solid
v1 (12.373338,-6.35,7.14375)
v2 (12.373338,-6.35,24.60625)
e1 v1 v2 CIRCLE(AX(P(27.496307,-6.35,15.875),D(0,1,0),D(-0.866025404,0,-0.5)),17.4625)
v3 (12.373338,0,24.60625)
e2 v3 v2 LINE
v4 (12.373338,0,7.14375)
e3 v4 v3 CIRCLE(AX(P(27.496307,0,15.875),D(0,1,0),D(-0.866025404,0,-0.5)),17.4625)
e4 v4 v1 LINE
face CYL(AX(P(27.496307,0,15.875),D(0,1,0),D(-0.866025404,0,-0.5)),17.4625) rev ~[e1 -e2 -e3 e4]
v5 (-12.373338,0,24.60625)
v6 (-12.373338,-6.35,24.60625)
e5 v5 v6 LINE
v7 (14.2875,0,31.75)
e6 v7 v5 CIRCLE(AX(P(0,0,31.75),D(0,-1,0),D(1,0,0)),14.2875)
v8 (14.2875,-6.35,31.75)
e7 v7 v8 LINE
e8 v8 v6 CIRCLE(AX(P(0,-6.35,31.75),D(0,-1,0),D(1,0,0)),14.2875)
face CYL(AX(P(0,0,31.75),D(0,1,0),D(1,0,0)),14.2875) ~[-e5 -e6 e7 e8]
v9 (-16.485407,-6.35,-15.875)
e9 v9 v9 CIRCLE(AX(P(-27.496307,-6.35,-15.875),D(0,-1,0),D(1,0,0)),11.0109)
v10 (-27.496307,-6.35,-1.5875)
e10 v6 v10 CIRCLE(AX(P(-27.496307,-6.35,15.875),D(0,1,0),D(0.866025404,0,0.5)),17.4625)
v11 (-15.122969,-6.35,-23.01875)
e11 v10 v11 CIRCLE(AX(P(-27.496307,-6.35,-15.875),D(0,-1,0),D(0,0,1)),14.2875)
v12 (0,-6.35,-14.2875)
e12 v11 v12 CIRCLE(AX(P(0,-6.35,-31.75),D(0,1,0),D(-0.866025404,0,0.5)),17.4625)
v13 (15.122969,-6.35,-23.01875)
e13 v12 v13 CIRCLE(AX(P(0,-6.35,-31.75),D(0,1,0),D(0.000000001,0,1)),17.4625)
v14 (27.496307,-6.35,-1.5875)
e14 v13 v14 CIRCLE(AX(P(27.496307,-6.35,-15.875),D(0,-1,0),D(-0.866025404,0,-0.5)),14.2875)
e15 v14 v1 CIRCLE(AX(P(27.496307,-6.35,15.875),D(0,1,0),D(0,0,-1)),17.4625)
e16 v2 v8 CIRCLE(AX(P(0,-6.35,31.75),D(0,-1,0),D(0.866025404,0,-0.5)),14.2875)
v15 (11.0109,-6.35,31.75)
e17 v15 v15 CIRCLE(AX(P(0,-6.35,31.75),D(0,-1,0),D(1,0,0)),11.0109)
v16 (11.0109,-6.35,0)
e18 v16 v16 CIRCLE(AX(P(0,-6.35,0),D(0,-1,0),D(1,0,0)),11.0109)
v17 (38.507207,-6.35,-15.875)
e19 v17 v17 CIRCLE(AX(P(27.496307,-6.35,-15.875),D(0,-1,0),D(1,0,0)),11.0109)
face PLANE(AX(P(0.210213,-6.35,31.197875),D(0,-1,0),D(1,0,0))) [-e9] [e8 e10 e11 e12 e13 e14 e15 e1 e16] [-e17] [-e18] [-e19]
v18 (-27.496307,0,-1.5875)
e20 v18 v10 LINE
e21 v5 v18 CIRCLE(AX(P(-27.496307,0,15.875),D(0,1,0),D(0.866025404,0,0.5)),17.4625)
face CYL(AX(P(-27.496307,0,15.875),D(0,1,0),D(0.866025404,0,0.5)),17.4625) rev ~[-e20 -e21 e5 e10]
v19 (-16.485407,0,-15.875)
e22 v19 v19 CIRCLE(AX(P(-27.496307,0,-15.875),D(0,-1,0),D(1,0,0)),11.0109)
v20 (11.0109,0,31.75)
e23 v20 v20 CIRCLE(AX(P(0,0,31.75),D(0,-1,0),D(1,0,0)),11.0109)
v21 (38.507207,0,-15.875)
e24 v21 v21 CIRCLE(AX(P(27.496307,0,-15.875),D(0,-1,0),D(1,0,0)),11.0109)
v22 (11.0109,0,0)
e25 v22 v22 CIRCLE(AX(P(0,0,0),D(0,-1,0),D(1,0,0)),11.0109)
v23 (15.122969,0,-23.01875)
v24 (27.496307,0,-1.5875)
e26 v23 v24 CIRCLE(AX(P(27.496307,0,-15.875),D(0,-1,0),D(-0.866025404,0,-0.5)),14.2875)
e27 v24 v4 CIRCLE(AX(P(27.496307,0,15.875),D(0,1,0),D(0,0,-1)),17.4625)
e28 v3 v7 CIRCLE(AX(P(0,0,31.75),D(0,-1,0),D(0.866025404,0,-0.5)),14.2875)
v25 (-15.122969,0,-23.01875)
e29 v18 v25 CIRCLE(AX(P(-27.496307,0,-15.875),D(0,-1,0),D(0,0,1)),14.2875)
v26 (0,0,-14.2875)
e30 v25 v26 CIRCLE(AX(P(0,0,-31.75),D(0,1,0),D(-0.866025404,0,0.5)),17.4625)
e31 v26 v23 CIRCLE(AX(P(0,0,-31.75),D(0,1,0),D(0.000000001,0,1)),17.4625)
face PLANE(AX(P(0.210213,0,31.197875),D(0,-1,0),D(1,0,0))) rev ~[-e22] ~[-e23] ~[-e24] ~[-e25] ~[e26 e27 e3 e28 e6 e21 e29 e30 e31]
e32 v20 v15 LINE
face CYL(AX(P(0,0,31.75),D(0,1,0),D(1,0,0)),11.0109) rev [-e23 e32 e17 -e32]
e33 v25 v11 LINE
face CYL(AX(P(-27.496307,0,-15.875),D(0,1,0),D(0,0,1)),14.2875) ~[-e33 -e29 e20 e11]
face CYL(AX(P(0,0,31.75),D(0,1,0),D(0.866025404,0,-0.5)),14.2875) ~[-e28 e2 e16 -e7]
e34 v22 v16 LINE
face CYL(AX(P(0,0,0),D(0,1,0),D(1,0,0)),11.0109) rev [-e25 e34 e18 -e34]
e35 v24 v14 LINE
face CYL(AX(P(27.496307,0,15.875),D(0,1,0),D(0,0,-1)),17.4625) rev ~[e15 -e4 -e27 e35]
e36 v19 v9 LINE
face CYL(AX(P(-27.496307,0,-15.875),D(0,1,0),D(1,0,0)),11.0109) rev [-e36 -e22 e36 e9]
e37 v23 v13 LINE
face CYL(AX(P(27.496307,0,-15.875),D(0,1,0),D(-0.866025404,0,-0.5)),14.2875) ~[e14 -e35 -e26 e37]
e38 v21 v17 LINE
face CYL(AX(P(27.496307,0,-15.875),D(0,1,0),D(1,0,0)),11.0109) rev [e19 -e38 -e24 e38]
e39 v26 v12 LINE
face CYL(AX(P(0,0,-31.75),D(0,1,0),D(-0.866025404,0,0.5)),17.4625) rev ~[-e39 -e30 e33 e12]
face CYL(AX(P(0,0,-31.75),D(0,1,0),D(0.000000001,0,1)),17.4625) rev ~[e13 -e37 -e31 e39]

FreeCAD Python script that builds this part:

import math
import FreeCAD as App
import Part
import Sketcher

V = App.Vector
Q = App.Units.Quantity

doc = App.newDocument("Part")
body = doc.addObject("PartDesign::Body", "Body")

sketch1 = body.newObject("Sketcher::SketchObject", "Sketch")
sketch1.AttachmentSupport = (doc.getObject("XZ_Plane"), [""])
sketch1.MapMode = "FlatFace"
sketch1.addGeometry(Part.ArcOfCircle(Part.Circle(V(0, 31.75, 0), V(0, 0, 1), 14.2875), math.radians(0), math.radians(210)), False)
sketch1.addGeometry(Part.ArcOfCircle(Part.Circle(V(-27.496307, 15.875, 0), V(0, 0, 1), 17.4625), math.radians(-90), math.radians(30)), False)
sketch1.addGeometry(Part.ArcOfCircle(Part.Circle(V(-27.496307, -15.875, 0), V(0, 0, 1), 14.2875), math.radians(90), math.radians(330)), False)
sketch1.addGeometry(Part.ArcOfCircle(Part.Circle(V(0, -31.75, 0), V(0, 0, 1), 17.4625), math.radians(90), math.radians(150)), False)
sketch1.addGeometry(Part.ArcOfCircle(Part.Circle(V(0, -31.75, 0), V(0, 0, 1), 17.4625), math.radians(30), math.radians(90)), False)
sketch1.addGeometry(Part.ArcOfCircle(Part.Circle(V(27.496307, -15.875, 0), V(0, 0, 1), 14.2875), math.radians(-150), math.radians(90)), False)
sketch1.addGeometry(Part.ArcOfCircle(Part.Circle(V(27.496307, 15.875, 0), V(0, 0, 1), 17.4625), math.radians(-150), math.radians(-90)), False)
sketch1.addGeometry(Part.ArcOfCircle(Part.Circle(V(27.496307, 15.875, 0), V(0, 0, 1), 17.4625), math.radians(150), math.radians(210)), False)
sketch1.addGeometry(Part.ArcOfCircle(Part.Circle(V(0, 31.75, 0), V(0, 0, 1), 14.2875), math.radians(-30), math.radians(0)), False)
sketch1.addGeometry(Part.Circle(V(-27.496307, -15.875, 0), V(0, 0, 1), 11.0109), False)
sketch1.addGeometry(Part.Circle(V(27.496307, -15.875, 0), V(0, 0, 1), 11.0109), False)
sketch1.addGeometry(Part.Circle(V(0, 0, 0), V(0, 0, 1), 11.0109), False)
sketch1.addGeometry(Part.Circle(V(0, 31.75, 0), V(0, 0, 1), 11.0109), False)
sketch1.addConstraint(Sketcher.Constraint("Tangent", 0, 2, 1, 2))
sketch1.addConstraint(Sketcher.Constraint("Tangent", 1, 1, 2, 1))
sketch1.addConstraint(Sketcher.Constraint("Tangent", 2, 2, 3, 2))
sketch1.addConstraint(Sketcher.Constraint("Tangent", 3, 1, 4, 2))
sketch1.addConstraint(Sketcher.Constraint("Tangent", 4, 1, 5, 1))
sketch1.addConstraint(Sketcher.Constraint("Tangent", 5, 2, 6, 2))
sketch1.addConstraint(Sketcher.Constraint("Tangent", 6, 1, 7, 2))
sketch1.addConstraint(Sketcher.Constraint("Tangent", 7, 1, 8, 1))
sketch1.addConstraint(Sketcher.Constraint("Tangent", 8, 2, 0, 1))
sketch1.addConstraint(Sketcher.Constraint("Coincident", 11, 3, -1, 1))
sketch1.addConstraint(Sketcher.Constraint("Coincident", 9, 3, 2, 3))
sketch1.addConstraint(Sketcher.Constraint("Coincident", 10, 3, 5, 3))
sketch1.addConstraint(Sketcher.Constraint("Coincident", 12, 3, 0, 3))
sketch1.addConstraint(Sketcher.Constraint("Equal", 0, 2))
sketch1.addConstraint(Sketcher.Constraint("Equal", 1, 3))
sketch1.addConstraint(Sketcher.Constraint("Equal", 3, 4))
sketch1.addConstraint(Sketcher.Constraint("Equal", 2, 5))
sketch1.addConstraint(Sketcher.Constraint("Equal", 4, 6))
sketch1.addConstraint(Sketcher.Constraint("Equal", 6, 7))
sketch1.addConstraint(Sketcher.Constraint("Equal", 5, 8))
sketch1.addConstraint(Sketcher.Constraint("Equal", 9, 10))
sketch1.addConstraint(Sketcher.Constraint("Equal", 10, 11))
sketch1.addConstraint(Sketcher.Constraint("Equal", 11, 12))
sketch1.addConstraint(Sketcher.Constraint("Symmetric", 0, 3, 3, 3, -1, 1))
sketch1.addConstraint(Sketcher.Constraint("Symmetric", 2, 3, 5, 3, -2))
sketch1.addConstraint(Sketcher.Constraint("PointOnObject", 3, 1, -2))
sketch1.addConstraint(Sketcher.Constraint("Horizontal", 12, 3, 8, 2))
sketch1.addConstraint(Sketcher.Constraint("Vertical", 1, 3, 2, 3))
sketch1.addConstraint(Sketcher.Constraint("Vertical", 6, 1, 7, 1))
sketch1.addConstraint(Sketcher.Constraint("Diameter", 9, Q("0.867 in")))
sketch1.addConstraint(Sketcher.Constraint("Radius", 0, Q("0.5625 in")))
sketch1.addConstraint(Sketcher.Constraint("Radius", 1, Q("0.6875 in")))
sketch1.addConstraint(Sketcher.Constraint("DistanceY", 3, 3, 0, 3, Q("2.5 in")))
pad1 = body.newObject("PartDesign::Pad", "Pad")
pad1.Profile = sketch1
pad1.Length = Q("0.25 in")

doc.recompute()
